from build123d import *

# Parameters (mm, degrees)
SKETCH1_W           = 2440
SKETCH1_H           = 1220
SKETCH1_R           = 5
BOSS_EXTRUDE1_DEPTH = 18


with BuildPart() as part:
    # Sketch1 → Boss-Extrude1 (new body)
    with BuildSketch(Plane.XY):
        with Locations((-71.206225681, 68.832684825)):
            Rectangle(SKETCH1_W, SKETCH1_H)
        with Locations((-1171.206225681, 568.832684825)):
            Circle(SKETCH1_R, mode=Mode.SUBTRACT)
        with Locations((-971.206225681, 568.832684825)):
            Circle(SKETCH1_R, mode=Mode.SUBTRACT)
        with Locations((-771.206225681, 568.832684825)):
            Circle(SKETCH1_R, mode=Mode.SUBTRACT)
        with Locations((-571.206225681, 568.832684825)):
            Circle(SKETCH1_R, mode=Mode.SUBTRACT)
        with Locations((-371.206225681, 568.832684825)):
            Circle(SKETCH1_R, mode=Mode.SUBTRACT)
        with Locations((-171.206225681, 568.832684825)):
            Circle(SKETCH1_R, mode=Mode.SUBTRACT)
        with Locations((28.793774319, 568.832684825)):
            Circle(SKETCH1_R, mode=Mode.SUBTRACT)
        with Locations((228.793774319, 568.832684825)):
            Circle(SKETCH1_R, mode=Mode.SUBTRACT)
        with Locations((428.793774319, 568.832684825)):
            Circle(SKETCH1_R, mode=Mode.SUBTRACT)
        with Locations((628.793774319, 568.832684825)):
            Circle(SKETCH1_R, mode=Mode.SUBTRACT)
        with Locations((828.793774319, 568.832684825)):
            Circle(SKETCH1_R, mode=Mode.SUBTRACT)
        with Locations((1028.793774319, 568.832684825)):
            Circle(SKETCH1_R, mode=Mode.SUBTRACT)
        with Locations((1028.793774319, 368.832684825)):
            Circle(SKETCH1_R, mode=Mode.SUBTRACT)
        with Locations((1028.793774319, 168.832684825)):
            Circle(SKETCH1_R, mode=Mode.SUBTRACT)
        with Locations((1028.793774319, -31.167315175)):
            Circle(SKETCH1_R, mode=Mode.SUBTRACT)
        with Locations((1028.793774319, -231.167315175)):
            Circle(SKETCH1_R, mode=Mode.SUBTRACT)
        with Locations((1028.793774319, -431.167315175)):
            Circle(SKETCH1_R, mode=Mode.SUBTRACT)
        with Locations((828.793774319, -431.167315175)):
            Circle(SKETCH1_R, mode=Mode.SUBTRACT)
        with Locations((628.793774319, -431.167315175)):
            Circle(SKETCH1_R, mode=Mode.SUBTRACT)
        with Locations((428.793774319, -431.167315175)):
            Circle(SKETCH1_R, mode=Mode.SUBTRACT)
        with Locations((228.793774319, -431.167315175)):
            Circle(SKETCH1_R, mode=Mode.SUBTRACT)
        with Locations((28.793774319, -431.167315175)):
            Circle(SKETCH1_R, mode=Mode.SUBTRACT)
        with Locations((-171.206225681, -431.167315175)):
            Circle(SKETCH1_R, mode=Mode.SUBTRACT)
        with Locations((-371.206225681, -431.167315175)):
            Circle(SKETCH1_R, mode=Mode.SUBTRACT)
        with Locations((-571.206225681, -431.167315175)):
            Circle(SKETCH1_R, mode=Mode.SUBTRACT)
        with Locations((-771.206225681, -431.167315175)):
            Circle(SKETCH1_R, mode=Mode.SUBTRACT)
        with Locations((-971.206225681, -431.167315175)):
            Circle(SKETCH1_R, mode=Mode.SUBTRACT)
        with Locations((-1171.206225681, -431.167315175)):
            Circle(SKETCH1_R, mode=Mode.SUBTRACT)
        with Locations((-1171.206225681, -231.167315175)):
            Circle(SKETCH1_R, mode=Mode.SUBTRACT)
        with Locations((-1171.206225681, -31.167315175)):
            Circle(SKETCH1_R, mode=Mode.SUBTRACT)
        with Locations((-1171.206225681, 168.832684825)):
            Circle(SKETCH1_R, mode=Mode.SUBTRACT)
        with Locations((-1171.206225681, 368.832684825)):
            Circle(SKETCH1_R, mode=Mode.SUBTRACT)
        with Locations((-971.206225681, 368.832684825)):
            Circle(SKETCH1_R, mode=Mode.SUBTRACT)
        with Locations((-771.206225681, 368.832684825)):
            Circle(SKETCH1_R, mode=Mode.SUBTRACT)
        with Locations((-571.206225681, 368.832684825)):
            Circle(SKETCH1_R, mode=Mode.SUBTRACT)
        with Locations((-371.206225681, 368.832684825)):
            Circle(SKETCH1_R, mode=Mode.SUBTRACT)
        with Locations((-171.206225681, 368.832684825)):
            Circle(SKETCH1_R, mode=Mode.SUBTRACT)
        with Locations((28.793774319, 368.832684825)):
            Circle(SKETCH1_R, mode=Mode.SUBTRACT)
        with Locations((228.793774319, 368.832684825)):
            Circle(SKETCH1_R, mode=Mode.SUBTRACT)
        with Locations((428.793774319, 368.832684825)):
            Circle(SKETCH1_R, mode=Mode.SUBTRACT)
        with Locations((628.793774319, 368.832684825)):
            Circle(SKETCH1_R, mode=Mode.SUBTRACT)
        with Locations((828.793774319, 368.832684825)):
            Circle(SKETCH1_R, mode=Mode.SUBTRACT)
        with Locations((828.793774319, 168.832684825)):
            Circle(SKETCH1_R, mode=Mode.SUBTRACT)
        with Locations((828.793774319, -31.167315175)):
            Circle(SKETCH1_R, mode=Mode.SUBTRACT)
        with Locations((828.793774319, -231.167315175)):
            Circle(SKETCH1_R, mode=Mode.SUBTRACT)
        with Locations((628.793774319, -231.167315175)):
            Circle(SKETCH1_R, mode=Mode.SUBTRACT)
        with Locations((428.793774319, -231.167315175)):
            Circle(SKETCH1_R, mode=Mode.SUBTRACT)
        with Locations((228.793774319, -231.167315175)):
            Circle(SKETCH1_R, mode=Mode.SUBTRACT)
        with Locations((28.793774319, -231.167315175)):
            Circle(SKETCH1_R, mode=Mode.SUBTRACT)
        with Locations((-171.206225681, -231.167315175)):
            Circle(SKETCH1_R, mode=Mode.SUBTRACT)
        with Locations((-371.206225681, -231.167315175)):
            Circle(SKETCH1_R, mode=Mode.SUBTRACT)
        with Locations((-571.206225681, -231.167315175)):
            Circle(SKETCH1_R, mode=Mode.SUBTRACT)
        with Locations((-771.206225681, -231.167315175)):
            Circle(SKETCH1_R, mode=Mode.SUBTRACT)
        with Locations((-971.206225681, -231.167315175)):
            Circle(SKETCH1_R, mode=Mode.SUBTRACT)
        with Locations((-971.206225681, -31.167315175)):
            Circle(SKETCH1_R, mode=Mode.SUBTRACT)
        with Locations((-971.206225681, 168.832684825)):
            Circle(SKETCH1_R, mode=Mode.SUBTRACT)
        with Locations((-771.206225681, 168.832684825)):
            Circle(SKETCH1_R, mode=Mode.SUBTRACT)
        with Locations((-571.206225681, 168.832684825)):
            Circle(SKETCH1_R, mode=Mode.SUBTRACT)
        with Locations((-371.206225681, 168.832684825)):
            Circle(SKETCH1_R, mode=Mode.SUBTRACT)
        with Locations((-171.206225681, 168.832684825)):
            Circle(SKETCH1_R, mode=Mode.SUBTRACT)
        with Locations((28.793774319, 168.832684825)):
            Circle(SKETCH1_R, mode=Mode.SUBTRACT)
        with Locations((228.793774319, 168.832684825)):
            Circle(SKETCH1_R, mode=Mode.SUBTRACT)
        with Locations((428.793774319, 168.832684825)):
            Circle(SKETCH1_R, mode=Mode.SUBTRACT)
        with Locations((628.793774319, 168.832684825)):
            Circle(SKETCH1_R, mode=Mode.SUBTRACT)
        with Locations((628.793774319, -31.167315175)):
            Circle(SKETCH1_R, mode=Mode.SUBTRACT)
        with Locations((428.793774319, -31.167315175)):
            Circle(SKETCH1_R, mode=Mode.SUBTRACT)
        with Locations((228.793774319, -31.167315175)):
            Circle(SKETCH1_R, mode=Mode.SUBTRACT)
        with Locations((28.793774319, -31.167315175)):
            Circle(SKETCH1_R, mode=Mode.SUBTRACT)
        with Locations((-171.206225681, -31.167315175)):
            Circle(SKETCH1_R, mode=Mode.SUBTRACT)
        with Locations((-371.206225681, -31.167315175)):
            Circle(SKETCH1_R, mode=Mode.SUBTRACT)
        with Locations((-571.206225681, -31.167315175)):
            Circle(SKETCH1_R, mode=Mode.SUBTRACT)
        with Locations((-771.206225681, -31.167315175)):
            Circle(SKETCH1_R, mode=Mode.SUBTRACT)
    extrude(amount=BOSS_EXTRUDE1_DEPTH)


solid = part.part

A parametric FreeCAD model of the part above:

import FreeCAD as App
import Part
import Sketcher

doc = App.newDocument("Part")
params = doc.addObject("Spreadsheet::Sheet", "Params")
for row, (alias, value) in enumerate([
    ("sketch1_diameter", "10 mm"),
    ("sketch1_width", "2440 mm"),
    ("sketch1_height", "1220 mm"),
    ("pad1_length", "18 mm"),
], start=1):
    params.set(f"A{row}", alias)
    params.set(f"B{row}", "=" + value)
    params.setAlias(f"B{row}", alias)

body = doc.addObject("PartDesign::Body", "Body")

sketch1 = doc.addObject("Sketcher::SketchObject", "Sketch")
body.addObject(sketch1)
sketch1.AttachmentSupport = (doc.XY_Plane, [""])
sketch1.MapMode = "FlatFace"
sketch1.addGeometry([
    Part.LineSegment(App.Vector(-1291, 679, 0), App.Vector(-1291, -541, 0)),
    Part.LineSegment(App.Vector(-1291, -541, 0), App.Vector(1149, -541, 0)),
    Part.LineSegment(App.Vector(1149, -541, 0), App.Vector(1149, 679, 0)),
    Part.LineSegment(App.Vector(1149, 679, 0), App.Vector(-1291, 679, 0)),
    Part.Circle(App.Vector(-1171, -431, 0), App.Vector(0, 0, 1), 5),
    Part.Circle(App.Vector(-971, -431, 0), App.Vector(0, 0, 1), 5),
    Part.Circle(App.Vector(-771, -431, 0), App.Vector(0, 0, 1), 5),
    Part.Circle(App.Vector(-1171, -231, 0), App.Vector(0, 0, 1), 5),
    Part.Circle(App.Vector(-971, -231, 0), App.Vector(0, 0, 1), 5),
    Part.Circle(App.Vector(-771, -231, 0), App.Vector(0, 0, 1), 5),
    Part.Circle(App.Vector(-571, -431, 0), App.Vector(0, 0, 1), 5),
    Part.Circle(App.Vector(-371, -431, 0), App.Vector(0, 0, 1), 5),
    Part.Circle(App.Vector(-171, -431, 0), App.Vector(0, 0, 1), 5),
    Part.Circle(App.Vector(-571, -231, 0), App.Vector(0, 0, 1), 5),
    Part.Circle(App.Vector(-371, -231, 0), App.Vector(0, 0, 1), 5),
    Part.Circle(App.Vector(-171, -231, 0), App.Vector(0, 0, 1), 5),
    Part.Circle(App.Vector(-1171, -31, 0), App.Vector(0, 0, 1), 5),
    Part.Circle(App.Vector(-971, -31, 0), App.Vector(0, 0, 1), 5),
    Part.Circle(App.Vector(-771, -31, 0), App.Vector(0, 0, 1), 5),
    Part.Circle(App.Vector(-571, -31, 0), App.Vector(0, 0, 1), 5),
    Part.Circle(App.Vector(-371, -31, 0), App.Vector(0, 0, 1), 5),
    Part.Circle(App.Vector(-171, -31, 0), App.Vector(0, 0, 1), 5),
    Part.Circle(App.Vector(29, -431, 0), App.Vector(0, 0, 1), 5),
    Part.Circle(App.Vector(229, -431, 0), App.Vector(0, 0, 1), 5),
    Part.Circle(App.Vector(429, -431, 0), App.Vector(0, 0, 1), 5),
    Part.Circle(App.Vector(29, -231, 0), App.Vector(0, 0, 1), 5),
    Part.Circle(App.Vector(229, -231, 0), App.Vector(0, 0, 1), 5),
    Part.Circle(App.Vector(429, -231, 0), App.Vector(0, 0, 1), 5),
    Part.Circle(App.Vector(629, -431, 0), App.Vector(0, 0, 1), 5),
    Part.Circle(App.Vector(829, -431, 0), App.Vector(0, 0, 1), 5),
    Part.Circle(App.Vector(1029, -431, 0), App.Vector(0, 0, 1), 5),
    Part.Circle(App.Vector(629, -231, 0), App.Vector(0, 0, 1), 5),
    Part.Circle(App.Vector(829, -231, 0), App.Vector(0, 0, 1), 5),
    Part.Circle(App.Vector(1029, -231, 0), App.Vector(0, 0, 1), 5),
    Part.Circle(App.Vector(29, -31, 0), App.Vector(0, 0, 1), 5),
    Part.Circle(App.Vector(229, -31, 0), App.Vector(0, 0, 1), 5),
    Part.Circle(App.Vector(429, -31, 0), App.Vector(0, 0, 1), 5),
    Part.Circle(App.Vector(629, -31, 0), App.Vector(0, 0, 1), 5),
    Part.Circle(App.Vector(829, -31, 0), App.Vector(0, 0, 1), 5),
    Part.Circle(App.Vector(1029, -31, 0), App.Vector(0, 0, 1), 5),
    Part.Circle(App.Vector(-1171, 169, 0), App.Vector(0, 0, 1), 5),
    Part.Circle(App.Vector(-971, 169, 0), App.Vector(0, 0, 1), 5),
    Part.Circle(App.Vector(-771, 169, 0), App.Vector(0, 0, 1), 5),
    Part.Circle(App.Vector(-571, 169, 0), App.Vector(0, 0, 1), 5),
    Part.Circle(App.Vector(-371, 169, 0), App.Vector(0, 0, 1), 5),
    Part.Circle(App.Vector(-171, 169, 0), App.Vector(0, 0, 1), 5),
    Part.Circle(App.Vector(-1171, 369, 0), App.Vector(0, 0, 1), 5),
    Part.Circle(App.Vector(-971, 369, 0), App.Vector(0, 0, 1), 5),
    Part.Circle(App.Vector(-771, 369, 0), App.Vector(0, 0, 1), 5),
    Part.Circle(App.Vector(-1171, 569, 0), App.Vector(0, 0, 1), 5),
    Part.Circle(App.Vector(-971, 569, 0), App.Vector(0, 0, 1), 5),
    Part.Circle(App.Vector(-771, 569, 0), App.Vector(0, 0, 1), 5),
    Part.Circle(App.Vector(-571, 369, 0), App.Vector(0, 0, 1), 5),
    Part.Circle(App.Vector(-371, 369, 0), App.Vector(0, 0, 1), 5),
    Part.Circle(App.Vector(-171, 369, 0), App.Vector(0, 0, 1), 5),
    Part.Circle(App.Vector(-571, 569, 0), App.Vector(0, 0, 1), 5),
    Part.Circle(App.Vector(-371, 569, 0), App.Vector(0, 0, 1), 5),
    Part.Circle(App.Vector(-171, 569, 0), App.Vector(0, 0, 1), 5),
    Part.Circle(App.Vector(29, 169, 0), App.Vector(0, 0, 1), 5),
    Part.Circle(App.Vector(229, 169, 0), App.Vector(0, 0, 1), 5),
    Part.Circle(App.Vector(429, 169, 0), App.Vector(0, 0, 1), 5),
    Part.Circle(App.Vector(629, 169, 0), App.Vector(0, 0, 1), 5),
    Part.Circle(App.Vector(829, 169, 0), App.Vector(0, 0, 1), 5),
    Part.Circle(App.Vector(1029, 169, 0), App.Vector(0, 0, 1), 5),
    Part.Circle(App.Vector(29, 369, 0), App.Vector(0, 0, 1), 5),
    Part.Circle(App.Vector(229, 369, 0), App.Vector(0, 0, 1), 5),
    Part.Circle(App.Vector(429, 369, 0), App.Vector(0, 0, 1), 5),
    Part.Circle(App.Vector(29, 569, 0), App.Vector(0, 0, 1), 5),
    Part.Circle(App.Vector(229, 569, 0), App.Vector(0, 0, 1), 5),
    Part.Circle(App.Vector(429, 569, 0), App.Vector(0, 0, 1), 5),
    Part.Circle(App.Vector(629, 369, 0), App.Vector(0, 0, 1), 5),
    Part.Circle(App.Vector(829, 369, 0), App.Vector(0, 0, 1), 5),
    Part.Circle(App.Vector(1029, 369, 0), App.Vector(0, 0, 1), 5),
    Part.Circle(App.Vector(629, 569, 0), App.Vector(0, 0, 1), 5),
    Part.Circle(App.Vector(829, 569, 0), App.Vector(0, 0, 1), 5),
    Part.Circle(App.Vector(1029, 569, 0), App.Vector(0, 0, 1), 5),
], False)
sketch1.addConstraint([
    Sketcher.Constraint("Coincident", 0, 2, 1, 1),
    Sketcher.Constraint("Coincident", 1, 2, 2, 1),
    Sketcher.Constraint("Coincident", 2, 2, 3, 1),
    Sketcher.Constraint("Coincident", 3, 2, 0, 1),
    Sketcher.Constraint("Vertical", 0),
    Sketcher.Constraint("Horizontal", 1),
    Sketcher.Constraint("Vertical", 2),
    Sketcher.Constraint("Horizontal", 3),
    Sketcher.Constraint("Equal", 4, 5),
    Sketcher.Constraint("Equal", 5, 6),
    Sketcher.Constraint("Equal", 6, 7),
    Sketcher.Constraint("Equal", 7, 8),
    Sketcher.Constraint("Equal", 8, 9),
    Sketcher.Constraint("Equal", 9, 10),
    Sketcher.Constraint("Equal", 10, 11),
    Sketcher.Constraint("Equal", 11, 12),
    Sketcher.Constraint("Equal", 12, 13),
    Sketcher.Constraint("Equal", 13, 14),
    Sketcher.Constraint("Equal", 14, 15),
    Sketcher.Constraint("Equal", 15, 16),
    Sketcher.Constraint("Equal", 16, 17),
    Sketcher.Constraint("Equal", 17, 18),
    Sketcher.Constraint("Equal", 18, 19),
    Sketcher.Constraint("Equal", 19, 20),
    Sketcher.Constraint("Equal", 20, 21),
    Sketcher.Constraint("Equal", 21, 22),
    Sketcher.Constraint("Equal", 22, 23),
    Sketcher.Constraint("Equal", 23, 24),
    Sketcher.Constraint("Equal", 24, 25),
    Sketcher.Constraint("Equal", 25, 26),
    Sketcher.Constraint("Equal", 26, 27),
    Sketcher.Constraint("Equal", 27, 28),
    Sketcher.Constraint("Equal", 28, 29),
    Sketcher.Constraint("Equal", 29, 30),
    Sketcher.Constraint("Equal", 30, 31),
    Sketcher.Constraint("Equal", 31, 32),
    Sketcher.Constraint("Equal", 32, 33),
    Sketcher.Constraint("Equal", 33, 34),
    Sketcher.Constraint("Equal", 34, 35),
    Sketcher.Constraint("Equal", 35, 36),
    Sketcher.Constraint("Equal", 36, 37),
    Sketcher.Constraint("Equal", 37, 38),
    Sketcher.Constraint("Equal", 38, 39),
    Sketcher.Constraint("Equal", 39, 40),
    Sketcher.Constraint("Equal", 40, 41),
    Sketcher.Constraint("Equal", 41, 42),
    Sketcher.Constraint("Equal", 42, 43),
    Sketcher.Constraint("Equal", 43, 44),
    Sketcher.Constraint("Equal", 44, 45),
    Sketcher.Constraint("Equal", 45, 46),
    Sketcher.Constraint("Equal", 46, 47),
    Sketcher.Constraint("Equal", 47, 48),
    Sketcher.Constraint("Equal", 48, 49),
    Sketcher.Constraint("Equal", 49, 50),
    Sketcher.Constraint("Equal", 50, 51),
    Sketcher.Constraint("Equal", 51, 52),
    Sketcher.Constraint("Equal", 52, 53),
    Sketcher.Constraint("Equal", 53, 54),
    Sketcher.Constraint("Equal", 54, 55),
    Sketcher.Constraint("Equal", 55, 56),
    Sketcher.Constraint("Equal", 56, 57),
    Sketcher.Constraint("Equal", 57, 58),
    Sketcher.Constraint("Equal", 58, 59),
    Sketcher.Constraint("Equal", 59, 60),
    Sketcher.Constraint("Equal", 60, 61),
    Sketcher.Constraint("Equal", 61, 62),
    Sketcher.Constraint("Equal", 62, 63),
    Sketcher.Constraint("Equal", 63, 64),
    Sketcher.Constraint("Equal", 64, 65),
    Sketcher.Constraint("Equal", 65, 66),
    Sketcher.Constraint("Equal", 66, 67),
    Sketcher.Constraint("Equal", 67, 68),
    Sketcher.Constraint("Equal", 68, 69),
    Sketcher.Constraint("Equal", 69, 70),
    Sketcher.Constraint("Equal", 70, 71),
    Sketcher.Constraint("Equal", 71, 72),
    Sketcher.Constraint("Equal", 72, 73),
    Sketcher.Constraint("Equal", 73, 74),
    Sketcher.Constraint("Equal", 74, 75),
    Sketcher.Constraint("Horizontal", 4, 3, 5, 3),
    Sketcher.Constraint("Horizontal", 5, 3, 6, 3),
    Sketcher.Constraint("Horizontal", 7, 3, 8, 3),
    Sketcher.Constraint("Horizontal", 8, 3, 9, 3),
    Sketcher.Constraint("Horizontal", 6, 3, 10, 3),
    Sketcher.Constraint("Horizontal", 10, 3, 11, 3),
    Sketcher.Constraint("Horizontal", 11, 3, 12, 3),
    Sketcher.Constraint("Horizontal", 9, 3, 13, 3),
    Sketcher.Constraint("Horizontal", 13, 3, 14, 3),
    Sketcher.Constraint("Horizontal", 14, 3, 15, 3),
    Sketcher.Constraint("Horizontal", 16, 3, 17, 3),
    Sketcher.Constraint("Horizontal", 17, 3, 18, 3),
    Sketcher.Constraint("Horizontal", 18, 3, 19, 3),
    Sketcher.Constraint("Horizontal", 19, 3, 20, 3),
    Sketcher.Constraint("Horizontal", 20, 3, 21, 3),
    Sketcher.Constraint("Horizontal", 12, 3, 22, 3),
    Sketcher.Constraint("Horizontal", 22, 3, 23, 3),
    Sketcher.Constraint("Horizontal", 23, 3, 24, 3),
    Sketcher.Constraint("Horizontal", 15, 3, 25, 3),
    Sketcher.Constraint("Horizontal", 25, 3, 26, 3),
    Sketcher.Constraint("Horizontal", 26, 3, 27, 3),
    Sketcher.Constraint("Horizontal", 24, 3, 28, 3),
    Sketcher.Constraint("Horizontal", 28, 3, 29, 3),
    Sketcher.Constraint("Horizontal", 29, 3, 30, 3),
    Sketcher.Constraint("Horizontal", 27, 3, 31, 3),
    Sketcher.Constraint("Horizontal", 31, 3, 32, 3),
    Sketcher.Constraint("Horizontal", 32, 3, 33, 3),
    Sketcher.Constraint("Horizontal", 21, 3, 34, 3),
    Sketcher.Constraint("Horizontal", 34, 3, 35, 3),
    Sketcher.Constraint("Horizontal", 35, 3, 36, 3),
    Sketcher.Constraint("Horizontal", 36, 3, 37, 3),
    Sketcher.Constraint("Horizontal", 37, 3, 38, 3),
    Sketcher.Constraint("Horizontal", 38, 3, 39, 3),
    Sketcher.Constraint("Horizontal", 40, 3, 41, 3),
    Sketcher.Constraint("Horizontal", 41, 3, 42, 3),
    Sketcher.Constraint("Horizontal", 42, 3, 43, 3),
    Sketcher.Constraint("Horizontal", 43, 3, 44, 3),
    Sketcher.Constraint("Horizontal", 44, 3, 45, 3),
    Sketcher.Constraint("Horizontal", 46, 3, 47, 3),
    Sketcher.Constraint("Horizontal", 47, 3, 48, 3),
    Sketcher.Constraint("Horizontal", 49, 3, 50, 3),
    Sketcher.Constraint("Horizontal", 50, 3, 51, 3),
    Sketcher.Constraint("Horizontal", 48, 3, 52, 3),
    Sketcher.Constraint("Horizontal", 52, 3, 53, 3),
    Sketcher.Constraint("Horizontal", 53, 3, 54, 3),
    Sketcher.Constraint("Horizontal", 51, 3, 55, 3),
    Sketcher.Constraint("Horizontal", 55, 3, 56, 3),
    Sketcher.Constraint("Horizontal", 56, 3, 57, 3),
    Sketcher.Constraint("Horizontal", 45, 3, 58, 3),
    Sketcher.Constraint("Horizontal", 58, 3, 59, 3),
    Sketcher.Constraint("Horizontal", 59, 3, 60, 3),
    Sketcher.Constraint("Horizontal", 60, 3, 61, 3),
    Sketcher.Constraint("Horizontal", 61, 3, 62, 3),
    Sketcher.Constraint("Horizontal", 62, 3, 63, 3),
    Sketcher.Constraint("Horizontal", 54, 3, 64, 3),
    Sketcher.Constraint("Horizontal", 64, 3, 65, 3),
    Sketcher.Constraint("Horizontal", 65, 3, 66, 3),
    Sketcher.Constraint("Horizontal", 57, 3, 67, 3),
    Sketcher.Constraint("Horizontal", 67, 3, 68, 3),
    Sketcher.Constraint("Horizontal", 68, 3, 69, 3),
    Sketcher.Constraint("Horizontal", 66, 3, 70, 3),
    Sketcher.Constraint("Horizontal", 70, 3, 71, 3),
    Sketcher.Constraint("Horizontal", 71, 3, 72, 3),
    Sketcher.Constraint("Horizontal", 69, 3, 73, 3),
    Sketcher.Constraint("Horizontal", 73, 3, 74, 3),
    Sketcher.Constraint("Horizontal", 74, 3, 75, 3),
    Sketcher.Constraint("Vertical", 4, 3, 7, 3),
    Sketcher.Constraint("Vertical", 5, 3, 8, 3),
    Sketcher.Constraint("Vertical", 6, 3, 9, 3),
    Sketcher.Constraint("Vertical", 10, 3, 13, 3),
    Sketcher.Constraint("Vertical", 11, 3, 14, 3),
    Sketcher.Constraint("Vertical", 12, 3, 15, 3),
    Sketcher.Constraint("Vertical", 7, 3, 16, 3),
    Sketcher.Constraint("Vertical", 8, 3, 17, 3),
    Sketcher.Constraint("Vertical", 9, 3, 18, 3),
    Sketcher.Constraint("Vertical", 13, 3, 19, 3),
    Sketcher.Constraint("Vertical", 14, 3, 20, 3),
    Sketcher.Constraint("Vertical", 15, 3, 21, 3),
    Sketcher.Constraint("Vertical", 22, 3, 25, 3),
    Sketcher.Constraint("Vertical", 23, 3, 26, 3),
    Sketcher.Constraint("Vertical", 24, 3, 27, 3),
    Sketcher.Constraint("Vertical", 28, 3, 31, 3),
    Sketcher.Constraint("Vertical", 29, 3, 32, 3),
    Sketcher.Constraint("Vertical", 30, 3, 33, 3),
    Sketcher.Constraint("Vertical", 25, 3, 34, 3),
    Sketcher.Constraint("Vertical", 26, 3, 35, 3),
    Sketcher.Constraint("Vertical", 27, 3, 36, 3),
    Sketcher.Constraint("Vertical", 31, 3, 37, 3),
    Sketcher.Constraint("Vertical", 32, 3, 38, 3),
    Sketcher.Constraint("Vertical", 33, 3, 39, 3),
    Sketcher.Constraint("Vertical", 16, 3, 40, 3),
    Sketcher.Constraint("Vertical", 17, 3, 41, 3),
    Sketcher.Constraint("Vertical", 18, 3, 42, 3),
    Sketcher.Constraint("Vertical", 19, 3, 43, 3),
    Sketcher.Constraint("Vertical", 20, 3, 44, 3),
    Sketcher.Constraint("Vertical", 21, 3, 45, 3),
    Sketcher.Constraint("Vertical", 40, 3, 46, 3),
    Sketcher.Constraint("Vertical", 41, 3, 47, 3),
    Sketcher.Constraint("Vertical", 42, 3, 48, 3),
    Sketcher.Constraint("Vertical", 46, 3, 49, 3),
    Sketcher.Constraint("Vertical", 47, 3, 50, 3),
    Sketcher.Constraint("Vertical", 48, 3, 51, 3),
    Sketcher.Constraint("Vertical", 43, 3, 52, 3),
    Sketcher.Constraint("Vertical", 44, 3, 53, 3),
    Sketcher.Constraint("Vertical", 45, 3, 54, 3),
    Sketcher.Constraint("Vertical", 52, 3, 55, 3),
    Sketcher.Constraint("Vertical", 53, 3, 56, 3),
    Sketcher.Constraint("Vertical", 54, 3, 57, 3),
    Sketcher.Constraint("Vertical", 34, 3, 58, 3),
    Sketcher.Constraint("Vertical", 35, 3, 59, 3),
    Sketcher.Constraint("Vertical", 36, 3, 60, 3),
    Sketcher.Constraint("Vertical", 37, 3, 61, 3),
    Sketcher.Constraint("Vertical", 38, 3, 62, 3),
    Sketcher.Constraint("Vertical", 39, 3, 63, 3),
    Sketcher.Constraint("Vertical", 58, 3, 64, 3),
    Sketcher.Constraint("Vertical", 59, 3, 65, 3),
    Sketcher.Constraint("Vertical", 60, 3, 66, 3),
    Sketcher.Constraint("Vertical", 64, 3, 67, 3),
    Sketcher.Constraint("Vertical", 65, 3, 68, 3),
    Sketcher.Constraint("Vertical", 66, 3, 69, 3),
    Sketcher.Constraint("Vertical", 61, 3, 70, 3),
    Sketcher.Constraint("Vertical", 62, 3, 71, 3),
    Sketcher.Constraint("Vertical", 63, 3, 72, 3),
    Sketcher.Constraint("Vertical", 70, 3, 73, 3),
    Sketcher.Constraint("Vertical", 71, 3, 74, 3),
    Sketcher.Constraint("Vertical", 72, 3, 75, 3),
    Sketcher.Constraint("Diameter", 4, 10.0),
    Sketcher.Constraint("DistanceX", 1, 1, 1, 2, 2440.0),
    Sketcher.Constraint("DistanceY", 0, 2, 0, 1, 1220.0),
    Sketcher.Constraint("DistanceX", 4, 3, -1, 1, 1171.206226),
    Sketcher.Constraint("DistanceY", 4, 3, -1, 1, 431.167315),
    Sketcher.Constraint("DistanceX", 5, 3, -1, 1, 971.206226),
    Sketcher.Constraint("DistanceX", 6, 3, -1, 1, 771.206226),
    Sketcher.Constraint("DistanceY", 7, 3, -1, 1, 231.167315),
    Sketcher.Constraint("DistanceX", 10, 3, -1, 1, 571.206226),
    Sketcher.Constraint("DistanceX", 11, 3, -1, 1, 371.206226),
    Sketcher.Constraint("DistanceX", 12, 3, -1, 1, 171.206226),
    Sketcher.Constraint("DistanceY", 16, 3, -1, 1, 31.167315),
    Sketcher.Constraint("DistanceX", -1, 1, 22, 3, 28.793774),
    Sketcher.Constraint("DistanceX", -1, 1, 23, 3, 228.793774),
    Sketcher.Constraint("DistanceX", -1, 1, 24, 3, 428.793774),
    Sketcher.Constraint("DistanceX", -1, 1, 28, 3, 628.793774),
    Sketcher.Constraint("DistanceX", -1, 1, 29, 3, 828.793774),
    Sketcher.Constraint("DistanceX", -1, 1, 30, 3, 1028.793774),
    Sketcher.Constraint("DistanceY", -1, 1, 40, 3, 168.832685),
    Sketcher.Constraint("DistanceY", -1, 1, 46, 3, 368.832685),
    Sketcher.Constraint("DistanceY", -1, 1, 49, 3, 568.832685),
    Sketcher.Constraint("DistanceX", 0, 2, -1, 1, 1291.206226),
    Sketcher.Constraint("DistanceY", 0, 2, -1, 1, 541.167315),
])
sketch1.setExpression("Constraints[205]", "Params.sketch1_diameter")
sketch1.setExpression("Constraints[206]", "Params.sketch1_width")
sketch1.setExpression("Constraints[207]", "Params.sketch1_height")
pad1 = doc.addObject("PartDesign::Pad", "Pad")
body.addObject(pad1)
pad1.Profile = sketch1
pad1.setExpression("Length", "Params.pad1_length")

doc.recompute()
